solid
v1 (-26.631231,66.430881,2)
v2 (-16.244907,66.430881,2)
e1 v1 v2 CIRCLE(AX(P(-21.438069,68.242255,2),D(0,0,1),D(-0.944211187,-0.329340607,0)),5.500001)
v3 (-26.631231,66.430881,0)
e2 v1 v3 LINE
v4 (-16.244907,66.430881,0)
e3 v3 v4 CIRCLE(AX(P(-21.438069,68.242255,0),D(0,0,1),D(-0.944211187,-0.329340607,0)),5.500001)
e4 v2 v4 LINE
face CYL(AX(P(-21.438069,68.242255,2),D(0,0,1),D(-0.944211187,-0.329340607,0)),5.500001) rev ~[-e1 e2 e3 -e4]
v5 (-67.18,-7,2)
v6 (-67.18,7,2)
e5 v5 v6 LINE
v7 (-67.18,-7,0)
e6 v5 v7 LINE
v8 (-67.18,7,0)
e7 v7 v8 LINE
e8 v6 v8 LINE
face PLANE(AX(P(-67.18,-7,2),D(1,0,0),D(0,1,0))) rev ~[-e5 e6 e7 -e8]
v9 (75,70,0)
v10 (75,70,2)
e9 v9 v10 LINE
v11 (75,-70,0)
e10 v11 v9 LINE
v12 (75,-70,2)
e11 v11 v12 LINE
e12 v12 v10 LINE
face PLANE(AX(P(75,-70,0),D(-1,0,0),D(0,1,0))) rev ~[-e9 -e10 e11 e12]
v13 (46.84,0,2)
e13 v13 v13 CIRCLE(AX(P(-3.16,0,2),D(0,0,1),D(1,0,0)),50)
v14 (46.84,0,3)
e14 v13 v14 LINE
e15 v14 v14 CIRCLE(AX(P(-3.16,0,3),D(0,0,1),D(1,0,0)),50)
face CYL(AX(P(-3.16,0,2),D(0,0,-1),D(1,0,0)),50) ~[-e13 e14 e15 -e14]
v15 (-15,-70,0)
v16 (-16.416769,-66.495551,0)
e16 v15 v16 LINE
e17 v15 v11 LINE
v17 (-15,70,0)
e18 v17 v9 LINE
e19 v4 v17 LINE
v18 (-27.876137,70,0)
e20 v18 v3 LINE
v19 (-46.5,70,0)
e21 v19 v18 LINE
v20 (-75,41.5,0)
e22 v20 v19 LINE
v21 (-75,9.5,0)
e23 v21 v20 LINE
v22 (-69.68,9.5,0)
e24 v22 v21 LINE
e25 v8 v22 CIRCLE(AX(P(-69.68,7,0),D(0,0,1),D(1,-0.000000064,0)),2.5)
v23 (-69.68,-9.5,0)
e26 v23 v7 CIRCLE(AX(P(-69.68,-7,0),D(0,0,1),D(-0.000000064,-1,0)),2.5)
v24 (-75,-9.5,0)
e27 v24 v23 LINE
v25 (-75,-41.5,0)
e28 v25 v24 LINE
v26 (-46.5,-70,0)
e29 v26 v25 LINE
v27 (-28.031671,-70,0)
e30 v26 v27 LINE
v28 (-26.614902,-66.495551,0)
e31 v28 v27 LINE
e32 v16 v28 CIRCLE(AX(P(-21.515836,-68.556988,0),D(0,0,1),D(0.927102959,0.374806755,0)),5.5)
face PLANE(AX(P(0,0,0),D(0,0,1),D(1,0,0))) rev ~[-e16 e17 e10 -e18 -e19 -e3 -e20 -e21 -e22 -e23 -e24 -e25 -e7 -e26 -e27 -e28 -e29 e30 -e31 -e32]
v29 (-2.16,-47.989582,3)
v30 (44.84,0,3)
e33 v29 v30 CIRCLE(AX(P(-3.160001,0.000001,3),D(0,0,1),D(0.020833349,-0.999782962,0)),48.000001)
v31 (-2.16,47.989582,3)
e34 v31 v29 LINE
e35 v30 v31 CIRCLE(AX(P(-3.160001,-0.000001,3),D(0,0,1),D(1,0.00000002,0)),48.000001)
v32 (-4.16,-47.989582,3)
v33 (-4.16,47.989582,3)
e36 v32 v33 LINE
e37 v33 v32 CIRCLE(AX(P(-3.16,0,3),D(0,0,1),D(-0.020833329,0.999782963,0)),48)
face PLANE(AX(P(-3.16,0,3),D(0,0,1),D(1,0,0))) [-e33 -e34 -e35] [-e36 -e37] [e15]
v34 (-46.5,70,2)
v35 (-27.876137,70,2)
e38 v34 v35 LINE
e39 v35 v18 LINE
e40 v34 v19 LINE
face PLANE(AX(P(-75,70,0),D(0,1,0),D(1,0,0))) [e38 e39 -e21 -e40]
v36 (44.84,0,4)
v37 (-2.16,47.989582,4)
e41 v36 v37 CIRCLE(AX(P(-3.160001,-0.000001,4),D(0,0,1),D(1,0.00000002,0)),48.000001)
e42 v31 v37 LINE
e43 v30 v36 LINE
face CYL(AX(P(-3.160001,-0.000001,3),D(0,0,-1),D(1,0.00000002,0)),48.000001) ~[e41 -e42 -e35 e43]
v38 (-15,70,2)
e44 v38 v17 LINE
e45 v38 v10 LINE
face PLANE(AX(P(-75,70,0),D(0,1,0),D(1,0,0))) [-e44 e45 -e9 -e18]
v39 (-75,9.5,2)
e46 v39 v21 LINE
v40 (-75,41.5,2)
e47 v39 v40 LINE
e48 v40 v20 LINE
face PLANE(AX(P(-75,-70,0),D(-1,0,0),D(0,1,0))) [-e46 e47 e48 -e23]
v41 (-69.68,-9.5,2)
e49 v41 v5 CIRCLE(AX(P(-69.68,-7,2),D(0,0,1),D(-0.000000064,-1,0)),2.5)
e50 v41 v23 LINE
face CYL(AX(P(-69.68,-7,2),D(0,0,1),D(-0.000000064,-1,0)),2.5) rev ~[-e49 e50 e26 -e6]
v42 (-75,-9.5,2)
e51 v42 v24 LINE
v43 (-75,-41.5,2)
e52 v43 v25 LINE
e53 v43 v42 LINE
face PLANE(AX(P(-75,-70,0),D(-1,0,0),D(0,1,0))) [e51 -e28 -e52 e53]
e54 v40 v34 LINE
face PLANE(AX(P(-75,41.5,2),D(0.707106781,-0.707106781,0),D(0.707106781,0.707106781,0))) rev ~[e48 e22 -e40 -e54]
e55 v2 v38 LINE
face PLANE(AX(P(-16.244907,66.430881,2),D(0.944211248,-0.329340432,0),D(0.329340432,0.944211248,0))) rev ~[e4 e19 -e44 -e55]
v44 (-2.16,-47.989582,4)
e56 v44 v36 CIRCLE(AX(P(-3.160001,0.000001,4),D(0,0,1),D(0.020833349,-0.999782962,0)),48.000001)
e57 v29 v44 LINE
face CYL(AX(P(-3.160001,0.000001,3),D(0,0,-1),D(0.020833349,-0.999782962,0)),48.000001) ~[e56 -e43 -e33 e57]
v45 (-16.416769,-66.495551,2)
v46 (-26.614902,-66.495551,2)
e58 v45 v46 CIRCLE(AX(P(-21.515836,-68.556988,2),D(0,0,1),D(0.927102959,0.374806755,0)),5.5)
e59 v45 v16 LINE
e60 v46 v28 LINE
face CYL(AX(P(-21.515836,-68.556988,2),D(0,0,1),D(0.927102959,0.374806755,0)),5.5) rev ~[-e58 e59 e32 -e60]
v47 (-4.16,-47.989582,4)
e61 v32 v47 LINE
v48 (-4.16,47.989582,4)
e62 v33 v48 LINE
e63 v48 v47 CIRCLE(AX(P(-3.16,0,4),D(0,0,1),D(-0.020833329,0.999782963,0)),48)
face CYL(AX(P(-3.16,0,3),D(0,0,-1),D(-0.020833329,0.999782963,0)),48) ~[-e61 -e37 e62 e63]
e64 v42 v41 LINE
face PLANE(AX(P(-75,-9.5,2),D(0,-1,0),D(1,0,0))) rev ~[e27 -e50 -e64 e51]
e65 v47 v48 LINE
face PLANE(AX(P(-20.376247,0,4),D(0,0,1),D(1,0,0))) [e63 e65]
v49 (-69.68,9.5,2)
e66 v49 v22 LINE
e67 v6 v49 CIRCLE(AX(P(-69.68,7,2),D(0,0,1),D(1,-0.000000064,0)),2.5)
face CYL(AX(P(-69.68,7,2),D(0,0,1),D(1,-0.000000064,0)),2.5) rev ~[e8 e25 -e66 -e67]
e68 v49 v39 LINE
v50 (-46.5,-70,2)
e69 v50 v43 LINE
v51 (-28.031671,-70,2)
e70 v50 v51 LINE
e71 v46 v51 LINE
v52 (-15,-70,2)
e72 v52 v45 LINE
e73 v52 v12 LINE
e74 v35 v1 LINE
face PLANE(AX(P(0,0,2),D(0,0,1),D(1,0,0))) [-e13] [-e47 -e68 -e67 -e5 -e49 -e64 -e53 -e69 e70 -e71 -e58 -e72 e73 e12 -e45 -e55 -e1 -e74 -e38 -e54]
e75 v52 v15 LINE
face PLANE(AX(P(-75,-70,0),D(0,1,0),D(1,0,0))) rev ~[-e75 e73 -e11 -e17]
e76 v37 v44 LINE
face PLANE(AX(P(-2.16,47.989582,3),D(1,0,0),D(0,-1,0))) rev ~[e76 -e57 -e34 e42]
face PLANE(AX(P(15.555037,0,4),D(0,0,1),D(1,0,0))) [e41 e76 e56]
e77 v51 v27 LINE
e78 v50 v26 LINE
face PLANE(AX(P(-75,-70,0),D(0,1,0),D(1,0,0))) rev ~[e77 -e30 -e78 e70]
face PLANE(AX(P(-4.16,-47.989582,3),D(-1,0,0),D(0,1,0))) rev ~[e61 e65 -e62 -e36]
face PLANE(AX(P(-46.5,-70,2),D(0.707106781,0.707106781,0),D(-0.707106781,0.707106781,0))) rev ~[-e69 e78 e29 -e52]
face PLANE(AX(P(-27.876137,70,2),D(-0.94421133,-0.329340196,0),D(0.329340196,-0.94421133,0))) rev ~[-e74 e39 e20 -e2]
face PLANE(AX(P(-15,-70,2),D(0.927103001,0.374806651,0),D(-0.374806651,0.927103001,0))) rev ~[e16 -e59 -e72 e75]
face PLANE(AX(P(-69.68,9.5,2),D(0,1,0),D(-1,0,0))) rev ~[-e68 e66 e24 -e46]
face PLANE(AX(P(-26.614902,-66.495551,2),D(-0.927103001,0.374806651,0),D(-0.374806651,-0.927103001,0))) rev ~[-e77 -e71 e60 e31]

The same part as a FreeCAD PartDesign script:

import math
import FreeCAD as App
import Part
import Sketcher

V = App.Vector


def add_polygon(sketch, points):
    """Adds a closed chain of lines whose ends are joined by coincident constraints."""
    first, n = sketch.GeometryCount, len(points)
    for a, b in zip(points, points[1:] + points[:1]):
        sketch.addGeometry(Part.LineSegment(App.Vector(*a, 0), App.Vector(*b, 0)), False)
    for i in range(n):
        sketch.addConstraint(Sketcher.Constraint("Coincident", first + i, 2, first + (i + 1) % n, 1))

doc = App.newDocument("Part")
body = doc.addObject("PartDesign::Body", "Body")

sketch1 = doc.addObject("Sketcher::SketchObject", "Sketch")
body.addObject(sketch1)
sketch1.AttachmentSupport = (doc.XY_Plane, [""])
sketch1.MapMode = "FlatFace"
add_polygon(sketch1, [(-75, 70), (-75, -70), (75, -70), (75, 70)])
sketch1.addConstraint([
    Sketcher.Constraint("Vertical", 0),
    Sketcher.Constraint("Horizontal", 1),
    Sketcher.Constraint("Vertical", 2),
    Sketcher.Constraint("Horizontal", 3),
    Sketcher.Constraint("Symmetric", 0, 2, 2, 2, -1, 1),
    Sketcher.Constraint("DistanceX", 1, 1, 1, 2, 150.0),
    Sketcher.Constraint("DistanceY", 0, 2, 0, 1, 140.0),
])
pad1 = doc.addObject("PartDesign::Pad", "Pad")
body.addObject(pad1)
pad1.Profile = sketch1
pad1.Length = 2

sketch2 = doc.addObject("Sketcher::SketchObject", "Sketch001")
body.addObject(sketch2)
sketch2.AttachmentSupport = (doc.XY_Plane, [""])
sketch2.MapMode = "FlatFace"
sketch2.AttachmentOffset = App.Placement(V(0, 0, 2), App.Rotation())
add_polygon(sketch2, [(-75, 70), (-75, 42), (-46, 70)])
add_polygon(sketch2, [(-46, -70), (-75, -42), (-75, -70)])
sketch2.addConstraint([
    Sketcher.Constraint("Vertical", 0),
    Sketcher.Constraint("Horizontal", 2),
    Sketcher.Constraint("Vertical", 4),
    Sketcher.Constraint("Horizontal", 5),
    Sketcher.Constraint("Symmetric", 0, 2, 3, 2, -1),
    Sketcher.Constraint("Symmetric", 1, 2, 5, 2, -1),
    Sketcher.Constraint("Perpendicular", 1, 3),
    Sketcher.Constraint("DistanceX", 2, 2, 2, 1, 28.5),
    Sketcher.Constraint("DistanceX", 0, 2, -1, 1, 75.0),
    Sketcher.Constraint("DistanceY", -1, 1, 1, 2, 70.0),
])
pocket1 = doc.addObject("PartDesign::Pocket", "Pocket")
body.addObject(pocket1)
pocket1.Profile = sketch2
pocket1.Type = "ThroughAll"

sketch3 = doc.addObject("Sketcher::SketchObject", "Sketch002")
body.addObject(sketch3)
sketch3.AttachmentSupport = (doc.XY_Plane, [""])
sketch3.MapMode = "FlatFace"
sketch3.AttachmentOffset = App.Placement(V(0, 0, 2), App.Rotation())
sketch3.addGeometry([
    Part.LineSegment(V(-69.7, 9.5, 0), V(-75, 9.5, 0)),
    Part.LineSegment(V(-75, 9.5, 0), V(-75, -9.5, 0)),
    Part.LineSegment(V(-75, -9.5, 0), V(-69.7, -9.5, 0)),
    Part.ArcOfCircle(Part.Circle(V(-69.7, -7, 0), V(0, 0, 1), 2.5), math.radians(-90), math.radians(0)),
    Part.LineSegment(V(-67.2, -7, 0), V(-67.2, 7, 0)),
    Part.ArcOfCircle(Part.Circle(V(-69.7, 7, 0), V(0, 0, 1), 2.5), math.radians(0), math.radians(90)),
], False)
sketch3.addConstraint([
    Sketcher.Constraint("Coincident", 0, 2, 1, 1),
    Sketcher.Constraint("Coincident", 1, 2, 2, 1),
    Sketcher.Constraint("Tangent", 2, 2, 3, 1),
    Sketcher.Constraint("Tangent", 3, 2, 4, 1),
    Sketcher.Constraint("Tangent", 4, 2, 5, 1),
    Sketcher.Constraint("Tangent", 5, 2, 0, 1),
    Sketcher.Constraint("Horizontal", 0),
    Sketcher.Constraint("Vertical", 1),
    Sketcher.Constraint("Horizontal", 2),
    Sketcher.Constraint("Vertical", 4),
    Sketcher.Constraint("Equal", 3, 5),
    Sketcher.Constraint("Radius", 3, 2.5),
    Sketcher.Constraint("DistanceY", 1, 2, 1, 1, 19.0),
    Sketcher.Constraint("DistanceY", 3, 3, -1, 1, 7.0),
    Sketcher.Constraint("DistanceX", 0, 2, -1, 1, 75.0),
    Sketcher.Constraint("DistanceX", 0, 2, 0, 1, 5.32),
])
pocket2 = doc.addObject("PartDesign::Pocket", "Pocket001")
body.addObject(pocket2)
pocket2.Profile = sketch3
pocket2.Type = "ThroughAll"

sketch4 = doc.addObject("Sketcher::SketchObject", "Sketch003")
body.addObject(sketch4)
sketch4.AttachmentSupport = (doc.XY_Plane, [""])
sketch4.MapMode = "FlatFace"
sketch4.AttachmentOffset = App.Placement(V(0, 0, 2), App.Rotation())
sketch4.addGeometry([
    Part.LineSegment(V(-28, -70, 0), V(-15, -70, 0)),
    Part.LineSegment(V(-15, -70, 0), V(-16.4, -66.5, 0)),
    Part.ArcOfCircle(Part.Circle(V(-21.5, -68.6, 0), V(0, 0, 1), 5.5), math.radians(22), math.radians(158)),
    Part.LineSegment(V(-26.6, -66.5, 0), V(-28, -70, 0)),
    Part.LineSegment(V(-27.9, 70, 0), V(-26.6, 66.4, 0)),
    Part.ArcOfCircle(Part.Circle(V(-21.4, 68.2, 0), V(0, 0, 1), 5.5), math.radians(-161), math.radians(-19)),
    Part.LineSegment(V(-16.2, 66.4, 0), V(-15, 70, 0)),
    Part.LineSegment(V(-15, 70, 0), V(-27.9, 70, 0)),
], False)
sketch4.addConstraint([
    Sketcher.Constraint("Coincident", 0, 2, 1, 1),
    Sketcher.Constraint("Tangent", 1, 2, 2, 1),
    Sketcher.Constraint("Tangent", 2, 2, 3, 1),
    Sketcher.Constraint("Coincident", 3, 2, 0, 1),
    Sketcher.Constraint("Tangent", 4, 2, 5, 1),
    Sketcher.Constraint("Tangent", 5, 2, 6, 1),
    Sketcher.Constraint("Coincident", 6, 2, 7, 1),
    Sketcher.Constraint("Coincident", 7, 2, 4, 1),
    Sketcher.Constraint("Horizontal", 0),
    Sketcher.Constraint("Horizontal", 7),
    Sketcher.Constraint("Equal", 2, 5),
    Sketcher.Constraint("Symmetric", 0, 2, 6, 2, -1),
    Sketcher.Constraint("Horizontal", 1, 2, 2, 2),
    Sketcher.Constraint("Horizontal", 4, 2, 5, 2),
    Sketcher.Constraint("Equal", 3, 4),
    Sketcher.Constraint("Radius", 2, 5.5),
    Sketcher.Constraint("DistanceX", 0, 2, -1, 1, 15.0),
    Sketcher.Constraint("DistanceY", 0, 2, -1, 1, 70.0),
    Sketcher.Constraint("Distance", 1, 3.78),
    Sketcher.Constraint("DistanceX", 0, 1, 0, 2, 13.031671),
    Sketcher.Constraint("DistanceX", 5, 3, 1, 2, 5.0213),
])
pocket3 = doc.addObject("PartDesign::Pocket", "Pocket002")
body.addObject(pocket3)
pocket3.Profile = sketch4
pocket3.Type = "ThroughAll"

sketch5 = doc.addObject("Sketcher::SketchObject", "Sketch004")
body.addObject(sketch5)
sketch5.AttachmentSupport = (doc.XY_Plane, [""])
sketch5.MapMode = "FlatFace"
sketch5.AttachmentOffset = App.Placement(V(0, 0, 2), App.Rotation())
sketch5.addGeometry(Part.Circle(V(-3, 0, 0), V(0, 0, 1), 50), False)
sketch5.addConstraint([
    Sketcher.Constraint("PointOnObject", 0, 3, -1),
    Sketcher.Constraint("Diameter", 0, 100.0),
    Sketcher.Constraint("DistanceX", 0, 3, -1, 1, 3.16),
])
pad2 = doc.addObject("PartDesign::Pad", "Pad001")
body.addObject(pad2)
pad2.Profile = sketch5
pad2.Length = 1

sketch6 = doc.addObject("Sketcher::SketchObject", "Sketch005")
body.addObject(sketch6)
sketch6.AttachmentSupport = (doc.XY_Plane, [""])
sketch6.MapMode = "FlatFace"
sketch6.AttachmentOffset = App.Placement(V(0, 0, 3), App.Rotation())
sketch6.addGeometry([
    Part.ArcOfCircle(Part.Circle(V(-3, 0, 0), V(0, 0, 1), 48), math.radians(-89), math.radians(0)),
    Part.ArcOfCircle(Part.Circle(V(-3, 0, 0), V(0, 0, 1), 48), math.radians(0), math.radians(89)),
    Part.LineSegment(V(-2, 48, 0), V(-2, -48, 0)),
    Part.LineSegment(V(-4, -48, 0), V(-4, 48, 0)),
    Part.ArcOfCircle(Part.Circle(V(-3, 0, 0), V(0, 0, 1), 48), math.radians(91), math.radians(269)),
], False)
sketch6.addConstraint([
    Sketcher.Constraint("Tangent", 0, 2, 1, 1),
    Sketcher.Constraint("Coincident", 1, 2, 2, 1),
    Sketcher.Constraint("Coincident", 2, 2, 0, 1),
    Sketcher.Constraint("Coincident", 3, 1, 4, 2),
    Sketcher.Constraint("Coincident", 4, 1, 3, 2),
    Sketcher.Constraint("Vertical", 2),
    Sketcher.Constraint("Vertical", 3),
    Sketcher.Constraint("Coincident", 4, 3, 0, 3),
    Sketcher.Constraint("Equal", 0, 1),
    Sketcher.Constraint("Equal", 1, 4),
    Sketcher.Constraint("PointOnObject", 0, 3, -1),
    Sketcher.Constraint("PointOnObject", 0, 2, -1),
    Sketcher.Constraint("Horizontal", 2, 2, 3, 1),
    Sketcher.Constraint("Radius", 0, 48.000001),
    Sketcher.Constraint("DistanceX", 0, 3, 1, 2, 1.000001),
    Sketcher.Constraint("DistanceX", 0, 3, -1, 1, 3.160001),
])
pad3 = doc.addObject("PartDesign::Pad", "Pad002")
body.addObject(pad3)
pad3.Profile = sketch6
pad3.Length = 1

doc.recompute()
